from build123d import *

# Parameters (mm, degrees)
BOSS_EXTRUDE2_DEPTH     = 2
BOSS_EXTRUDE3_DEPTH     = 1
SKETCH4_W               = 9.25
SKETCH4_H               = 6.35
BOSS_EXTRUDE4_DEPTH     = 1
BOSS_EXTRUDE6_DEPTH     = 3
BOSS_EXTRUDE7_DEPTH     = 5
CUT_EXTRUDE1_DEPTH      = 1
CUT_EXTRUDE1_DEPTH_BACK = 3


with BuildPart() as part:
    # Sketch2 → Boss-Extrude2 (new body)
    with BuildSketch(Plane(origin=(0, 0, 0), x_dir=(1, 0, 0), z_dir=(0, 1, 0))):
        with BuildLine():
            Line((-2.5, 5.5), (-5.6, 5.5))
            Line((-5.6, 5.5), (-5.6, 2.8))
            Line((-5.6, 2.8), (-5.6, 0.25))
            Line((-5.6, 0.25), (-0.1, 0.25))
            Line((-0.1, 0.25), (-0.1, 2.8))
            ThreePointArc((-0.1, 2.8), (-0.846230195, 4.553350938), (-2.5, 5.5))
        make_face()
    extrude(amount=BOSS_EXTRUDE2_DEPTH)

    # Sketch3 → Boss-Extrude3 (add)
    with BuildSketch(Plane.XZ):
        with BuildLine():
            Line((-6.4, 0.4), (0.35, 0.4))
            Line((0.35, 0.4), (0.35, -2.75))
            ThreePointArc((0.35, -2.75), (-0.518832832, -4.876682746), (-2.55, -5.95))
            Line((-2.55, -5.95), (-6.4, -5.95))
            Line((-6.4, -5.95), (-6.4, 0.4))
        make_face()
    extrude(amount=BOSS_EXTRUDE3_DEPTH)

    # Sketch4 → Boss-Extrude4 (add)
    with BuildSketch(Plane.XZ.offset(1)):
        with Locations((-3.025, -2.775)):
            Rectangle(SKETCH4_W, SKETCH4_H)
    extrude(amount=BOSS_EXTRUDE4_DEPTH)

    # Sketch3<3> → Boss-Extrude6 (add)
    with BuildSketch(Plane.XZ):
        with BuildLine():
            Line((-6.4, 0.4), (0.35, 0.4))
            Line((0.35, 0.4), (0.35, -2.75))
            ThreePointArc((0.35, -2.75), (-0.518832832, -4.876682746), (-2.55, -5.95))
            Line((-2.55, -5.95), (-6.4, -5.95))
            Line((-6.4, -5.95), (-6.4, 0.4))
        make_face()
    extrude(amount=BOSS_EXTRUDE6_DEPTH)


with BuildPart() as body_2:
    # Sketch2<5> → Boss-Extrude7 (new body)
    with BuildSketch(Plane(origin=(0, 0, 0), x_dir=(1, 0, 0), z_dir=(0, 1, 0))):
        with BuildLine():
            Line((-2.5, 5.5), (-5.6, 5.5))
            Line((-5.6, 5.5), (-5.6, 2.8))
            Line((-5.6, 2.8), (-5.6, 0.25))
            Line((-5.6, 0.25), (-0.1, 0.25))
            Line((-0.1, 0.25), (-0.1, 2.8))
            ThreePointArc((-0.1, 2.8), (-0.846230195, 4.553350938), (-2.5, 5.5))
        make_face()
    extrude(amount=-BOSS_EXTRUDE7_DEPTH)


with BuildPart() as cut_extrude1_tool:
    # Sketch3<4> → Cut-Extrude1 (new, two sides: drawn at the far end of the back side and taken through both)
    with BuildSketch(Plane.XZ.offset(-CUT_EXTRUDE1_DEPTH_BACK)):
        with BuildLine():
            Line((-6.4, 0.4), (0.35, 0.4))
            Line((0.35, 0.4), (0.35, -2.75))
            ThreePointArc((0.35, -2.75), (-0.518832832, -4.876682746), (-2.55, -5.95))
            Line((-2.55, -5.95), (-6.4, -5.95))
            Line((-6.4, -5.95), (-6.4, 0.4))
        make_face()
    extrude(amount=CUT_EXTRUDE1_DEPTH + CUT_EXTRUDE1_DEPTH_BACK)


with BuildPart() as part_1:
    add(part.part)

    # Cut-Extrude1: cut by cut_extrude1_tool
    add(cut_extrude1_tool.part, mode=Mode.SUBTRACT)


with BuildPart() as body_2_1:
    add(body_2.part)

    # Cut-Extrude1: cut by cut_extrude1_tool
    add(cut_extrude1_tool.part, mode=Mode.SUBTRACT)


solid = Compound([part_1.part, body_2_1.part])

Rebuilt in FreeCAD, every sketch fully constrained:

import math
import FreeCAD as App
import Part
import Sketcher
from FreeCAD import Vector


def add_polygon(sketch, points):
    """Adds a closed chain of lines whose ends are joined by coincident constraints."""
    first, n = sketch.GeometryCount, len(points)
    for a, b in zip(points, points[1:] + points[:1]):
        sketch.addGeometry(Part.LineSegment(App.Vector(*a, 0), App.Vector(*b, 0)), False)
    for i in range(n):
        sketch.addConstraint(Sketcher.Constraint("Coincident", first + i, 2, first + (i + 1) % n, 1))

doc = App.newDocument("Part")
body = doc.addObject("PartDesign::Body", "Body")

sketch1 = doc.addObject("Sketcher::SketchObject", "Sketch")
body.addObject(sketch1)
sketch1.AttachmentSupport = (doc.XZ_Plane, [""])
sketch1.MapMode = "FlatFace"
sketch1.addGeometry([
    Part.LineSegment(Vector(-2.5, -5.5, 0), Vector(-5.6, -5.5, 0)),
    Part.LineSegment(Vector(-5.6, -5.5, 0), Vector(-5.6, -0.25, 0)),
    Part.LineSegment(Vector(-5.6, -0.25, 0), Vector(-0.1, -0.25, 0)),
    Part.LineSegment(Vector(-0.1, -0.25, 0), Vector(-0.1, -2.8, 0)),
    Part.ArcOfCircle(Part.Circle(Vector(-3.081292, -2.566629, 0), Vector(0, 0, 1), 2.990412), math.radians(-78.791187), math.radians(-4.475891)),
], False)
sketch1.addConstraint([
    Sketcher.Constraint("Coincident", 0, 2, 1, 1),
    Sketcher.Constraint("Coincident", 1, 2, 2, 1),
    Sketcher.Constraint("Coincident", 2, 2, 3, 1),
    Sketcher.Constraint("Coincident", 3, 2, 4, 2),
    Sketcher.Constraint("Coincident", 4, 1, 0, 1),
    Sketcher.Constraint("Horizontal", 0),
    Sketcher.Constraint("Vertical", 1),
    Sketcher.Constraint("Horizontal", 2),
    Sketcher.Constraint("Vertical", 3),
    Sketcher.Constraint("DistanceX", 0, 2, 0, 1, 3.1),
    Sketcher.Constraint("DistanceX", 2, 1, 2, 2, 5.5),
    Sketcher.Constraint("DistanceY", 1, 1, 1, 2, 5.25),
    Sketcher.Constraint("DistanceY", 3, 2, 3, 1, 2.55),
    Sketcher.Constraint("DistanceX", 0, 2, -1, 1, 5.6),
    Sketcher.Constraint("DistanceY", 0, 2, -1, 1, 5.5),
    Sketcher.Constraint("Radius", 4, 2.990412),
])
pad1 = doc.addObject("PartDesign::Pad", "Pad")
body.addObject(pad1)
pad1.Profile = sketch1
pad1.Length = 2
pad1.Reversed = True

sketch2 = doc.addObject("Sketcher::SketchObject", "Sketch001")
body.addObject(sketch2)
sketch2.AttachmentSupport = (doc.XZ_Plane, [""])
sketch2.MapMode = "FlatFace"
sketch2.addGeometry([
    Part.LineSegment(Vector(0.35, 0.4, 0), Vector(-6.4, 0.4, 0)),
    Part.LineSegment(Vector(-6.4, 0.4, 0), Vector(-6.4, -5.95, 0)),
    Part.LineSegment(Vector(-6.4, -5.95, 0), Vector(-2.55, -5.95, 0)),
    Part.ArcOfCircle(Part.Circle(Vector(-3.011881, -2.617358, 0), Vector(0, 0, 1), 3.364496), math.radians(-82.109471), math.radians(-2.259416)),
    Part.LineSegment(Vector(0.35, -2.75, 0), Vector(0.35, 0.4, 0)),
], False)
sketch2.addConstraint([
    Sketcher.Constraint("Coincident", 0, 2, 1, 1),
    Sketcher.Constraint("Coincident", 1, 2, 2, 1),
    Sketcher.Constraint("Coincident", 2, 2, 3, 1),
    Sketcher.Constraint("Coincident", 3, 2, 4, 1),
    Sketcher.Constraint("Coincident", 4, 2, 0, 1),
    Sketcher.Constraint("Horizontal", 0),
    Sketcher.Constraint("Vertical", 1),
    Sketcher.Constraint("Horizontal", 2),
    Sketcher.Constraint("Vertical", 4),
    Sketcher.Constraint("DistanceX", 0, 2, 0, 1, 6.75),
    Sketcher.Constraint("DistanceX", 2, 1, 2, 2, 3.85),
    Sketcher.Constraint("DistanceY", 1, 2, 1, 1, 6.35),
    Sketcher.Constraint("DistanceY", 4, 1, 4, 2, 3.15),
    Sketcher.Constraint("DistanceX", 0, 2, -1, 1, 6.4),
    Sketcher.Constraint("DistanceY", -1, 1, 0, 2, 0.4),
    Sketcher.Constraint("Radius", 3, 3.364496),
])
pad2 = doc.addObject("PartDesign::Pad", "Pad001")
body.addObject(pad2)
pad2.Profile = sketch2
pad2.Length = 1

sketch3 = doc.addObject("Sketcher::SketchObject", "Sketch002")
body.addObject(sketch3)
sketch3.AttachmentSupport = (doc.XZ_Plane, [""])
sketch3.MapMode = "FlatFace"
sketch3.AttachmentOffset = App.Placement(Vector(0, 0, 1), App.Rotation())
add_polygon(sketch3, [(-7.65, 0.4), (-7.65, -5.95), (1.6, -5.95), (1.6, 0.4)])
sketch3.addConstraint([
    Sketcher.Constraint("Vertical", 0),
    Sketcher.Constraint("Horizontal", 1),
    Sketcher.Constraint("Vertical", 2),
    Sketcher.Constraint("Horizontal", 3),
    Sketcher.Constraint("DistanceX", 1, 1, 1, 2, 9.25),
    Sketcher.Constraint("DistanceY", 0, 2, 0, 1, 6.35),
    Sketcher.Constraint("DistanceX", -1, 1, 1, 2, 1.6),
    Sketcher.Constraint("DistanceY", -1, 1, 2, 2, 0.4),
])
pad3 = doc.addObject("PartDesign::Pad", "Pad002")
body.addObject(pad3)
pad3.Profile = sketch3
pad3.Length = 1

sketch4 = doc.addObject("Sketcher::SketchObject", "Sketch003")
body.addObject(sketch4)
sketch4.AttachmentSupport = (doc.XZ_Plane, [""])
sketch4.MapMode = "FlatFace"
sketch4.addGeometry([
    Part.LineSegment(Vector(0.35, 0.4, 0), Vector(-6.4, 0.4, 0)),
    Part.LineSegment(Vector(-6.4, 0.4, 0), Vector(-6.4, -5.95, 0)),
    Part.LineSegment(Vector(-6.4, -5.95, 0), Vector(-2.55, -5.95, 0)),
    Part.ArcOfCircle(Part.Circle(Vector(-3.011881, -2.617358, 0), Vector(0, 0, 1), 3.364496), math.radians(-82.109471), math.radians(-2.259416)),
    Part.LineSegment(Vector(0.35, -2.75, 0), Vector(0.35, 0.4, 0)),
], False)
sketch4.addConstraint([
    Sketcher.Constraint("Coincident", 0, 2, 1, 1),
    Sketcher.Constraint("Coincident", 1, 2, 2, 1),
    Sketcher.Constraint("Coincident", 2, 2, 3, 1),
    Sketcher.Constraint("Coincident", 3, 2, 4, 1),
    Sketcher.Constraint("Coincident", 4, 2, 0, 1),
    Sketcher.Constraint("Horizontal", 0),
    Sketcher.Constraint("Vertical", 1),
    Sketcher.Constraint("Horizontal", 2),
    Sketcher.Constraint("Vertical", 4),
    Sketcher.Constraint("DistanceX", 0, 2, 0, 1, 6.75),
    Sketcher.Constraint("DistanceX", 2, 1, 2, 2, 3.85),
    Sketcher.Constraint("DistanceY", 1, 2, 1, 1, 6.35),
    Sketcher.Constraint("DistanceY", 4, 1, 4, 2, 3.15),
    Sketcher.Constraint("DistanceX", 0, 2, -1, 1, 6.4),
    Sketcher.Constraint("DistanceY", -1, 1, 0, 2, 0.4),
    Sketcher.Constraint("Radius", 3, 3.364496),
])
pad4 = doc.addObject("PartDesign::Pad", "Pad003")
body.addObject(pad4)
pad4.Profile = sketch4
pad4.Length = 3
body2 = doc.addObject("PartDesign::Body", "Body001")

sketch5 = doc.addObject("Sketcher::SketchObject", "Sketch004")
body2.addObject(sketch5)
sketch5.AttachmentSupport = (doc.getObject("XZ_Plane001"), [""])
sketch5.MapMode = "FlatFace"
sketch5.addGeometry([
    Part.LineSegment(Vector(-2.5, -5.5, 0), Vector(-5.6, -5.5, 0)),
    Part.LineSegment(Vector(-5.6, -5.5, 0), Vector(-5.6, -0.25, 0)),
    Part.LineSegment(Vector(-5.6, -0.25, 0), Vector(-0.1, -0.25, 0)),
    Part.LineSegment(Vector(-0.1, -0.25, 0), Vector(-0.1, -2.8, 0)),
    Part.ArcOfCircle(Part.Circle(Vector(-3.081292, -2.566629, 0), Vector(0, 0, 1), 2.990412), math.radians(-78.791187), math.radians(-4.475891)),
], False)
sketch5.addConstraint([
    Sketcher.Constraint("Coincident", 0, 2, 1, 1),
    Sketcher.Constraint("Coincident", 1, 2, 2, 1),
    Sketcher.Constraint("Coincident", 2, 2, 3, 1),
    Sketcher.Constraint("Coincident", 3, 2, 4, 2),
    Sketcher.Constraint("Coincident", 4, 1, 0, 1),
    Sketcher.Constraint("Horizontal", 0),
    Sketcher.Constraint("Vertical", 1),
    Sketcher.Constraint("Horizontal", 2),
    Sketcher.Constraint("Vertical", 3),
    Sketcher.Constraint("DistanceX", 0, 2, 0, 1, 3.1),
    Sketcher.Constraint("DistanceX", 2, 1, 2, 2, 5.5),
    Sketcher.Constraint("DistanceY", 1, 1, 1, 2, 5.25),
    Sketcher.Constraint("DistanceY", 3, 2, 3, 1, 2.55),
    Sketcher.Constraint("DistanceX", 0, 2, -1, 1, 5.6),
    Sketcher.Constraint("DistanceY", 0, 2, -1, 1, 5.5),
    Sketcher.Constraint("Radius", 4, 2.990412),
])
pad5 = doc.addObject("PartDesign::Pad", "Pad004")
body2.addObject(pad5)
pad5.Profile = sketch5
pad5.Length = 5
body3 = doc.addObject("PartDesign::Body", "Body002")

sketch6 = doc.addObject("Sketcher::SketchObject", "Sketch005")
body3.addObject(sketch6)
sketch6.AttachmentSupport = (doc.getObject("XZ_Plane002"), [""])
sketch6.MapMode = "FlatFace"
sketch6.addGeometry([
    Part.LineSegment(Vector(0.35, 0.4, 0), Vector(-6.4, 0.4, 0)),
    Part.LineSegment(Vector(-6.4, 0.4, 0), Vector(-6.4, -5.95, 0)),
    Part.LineSegment(Vector(-6.4, -5.95, 0), Vector(-2.55, -5.95, 0)),
    Part.ArcOfCircle(Part.Circle(Vector(-3.011881, -2.617358, 0), Vector(0, 0, 1), 3.364496), math.radians(-82.109471), math.radians(-2.259416)),
    Part.LineSegment(Vector(0.35, -2.75, 0), Vector(0.35, 0.4, 0)),
], False)
sketch6.addConstraint([
    Sketcher.Constraint("Coincident", 0, 2, 1, 1),
    Sketcher.Constraint("Coincident", 1, 2, 2, 1),
    Sketcher.Constraint("Coincident", 2, 2, 3, 1),
    Sketcher.Constraint("Coincident", 3, 2, 4, 1),
    Sketcher.Constraint("Coincident", 4, 2, 0, 1),
    Sketcher.Constraint("Horizontal", 0),
    Sketcher.Constraint("Vertical", 1),
    Sketcher.Constraint("Horizontal", 2),
    Sketcher.Constraint("Vertical", 4),
    Sketcher.Constraint("DistanceX", 0, 2, 0, 1, 6.75),
    Sketcher.Constraint("DistanceX", 2, 1, 2, 2, 3.85),
    Sketcher.Constraint("DistanceY", 1, 2, 1, 1, 6.35),
    Sketcher.Constraint("DistanceY", 4, 1, 4, 2, 3.15),
    Sketcher.Constraint("DistanceX", 0, 2, -1, 1, 6.4),
    Sketcher.Constraint("DistanceY", -1, 1, 0, 2, 0.4),
    Sketcher.Constraint("Radius", 3, 3.364496),
])
pad6 = doc.addObject("PartDesign::Pad", "Pad005")
body3.addObject(pad6)
pad6.Profile = sketch6
pad6.Type = "TwoLengths"
pad6.Length = 1
pad6.Length2 = 3
doc.recompute()

body4 = doc.addObject("PartDesign::Body", "Body003")
body4.BaseFeature = body3
boolean = doc.addObject("PartDesign::Boolean", "Boolean")
body.addObject(boolean)
boolean.Type = "Cut"
boolean.addObjects([body4])
doc.recompute()

boolean2 = doc.addObject("PartDesign::Boolean", "Boolean001")
body2.addObject(boolean2)
boolean2.Type = "Cut"
boolean2.addObjects([body3])

doc.recompute()
